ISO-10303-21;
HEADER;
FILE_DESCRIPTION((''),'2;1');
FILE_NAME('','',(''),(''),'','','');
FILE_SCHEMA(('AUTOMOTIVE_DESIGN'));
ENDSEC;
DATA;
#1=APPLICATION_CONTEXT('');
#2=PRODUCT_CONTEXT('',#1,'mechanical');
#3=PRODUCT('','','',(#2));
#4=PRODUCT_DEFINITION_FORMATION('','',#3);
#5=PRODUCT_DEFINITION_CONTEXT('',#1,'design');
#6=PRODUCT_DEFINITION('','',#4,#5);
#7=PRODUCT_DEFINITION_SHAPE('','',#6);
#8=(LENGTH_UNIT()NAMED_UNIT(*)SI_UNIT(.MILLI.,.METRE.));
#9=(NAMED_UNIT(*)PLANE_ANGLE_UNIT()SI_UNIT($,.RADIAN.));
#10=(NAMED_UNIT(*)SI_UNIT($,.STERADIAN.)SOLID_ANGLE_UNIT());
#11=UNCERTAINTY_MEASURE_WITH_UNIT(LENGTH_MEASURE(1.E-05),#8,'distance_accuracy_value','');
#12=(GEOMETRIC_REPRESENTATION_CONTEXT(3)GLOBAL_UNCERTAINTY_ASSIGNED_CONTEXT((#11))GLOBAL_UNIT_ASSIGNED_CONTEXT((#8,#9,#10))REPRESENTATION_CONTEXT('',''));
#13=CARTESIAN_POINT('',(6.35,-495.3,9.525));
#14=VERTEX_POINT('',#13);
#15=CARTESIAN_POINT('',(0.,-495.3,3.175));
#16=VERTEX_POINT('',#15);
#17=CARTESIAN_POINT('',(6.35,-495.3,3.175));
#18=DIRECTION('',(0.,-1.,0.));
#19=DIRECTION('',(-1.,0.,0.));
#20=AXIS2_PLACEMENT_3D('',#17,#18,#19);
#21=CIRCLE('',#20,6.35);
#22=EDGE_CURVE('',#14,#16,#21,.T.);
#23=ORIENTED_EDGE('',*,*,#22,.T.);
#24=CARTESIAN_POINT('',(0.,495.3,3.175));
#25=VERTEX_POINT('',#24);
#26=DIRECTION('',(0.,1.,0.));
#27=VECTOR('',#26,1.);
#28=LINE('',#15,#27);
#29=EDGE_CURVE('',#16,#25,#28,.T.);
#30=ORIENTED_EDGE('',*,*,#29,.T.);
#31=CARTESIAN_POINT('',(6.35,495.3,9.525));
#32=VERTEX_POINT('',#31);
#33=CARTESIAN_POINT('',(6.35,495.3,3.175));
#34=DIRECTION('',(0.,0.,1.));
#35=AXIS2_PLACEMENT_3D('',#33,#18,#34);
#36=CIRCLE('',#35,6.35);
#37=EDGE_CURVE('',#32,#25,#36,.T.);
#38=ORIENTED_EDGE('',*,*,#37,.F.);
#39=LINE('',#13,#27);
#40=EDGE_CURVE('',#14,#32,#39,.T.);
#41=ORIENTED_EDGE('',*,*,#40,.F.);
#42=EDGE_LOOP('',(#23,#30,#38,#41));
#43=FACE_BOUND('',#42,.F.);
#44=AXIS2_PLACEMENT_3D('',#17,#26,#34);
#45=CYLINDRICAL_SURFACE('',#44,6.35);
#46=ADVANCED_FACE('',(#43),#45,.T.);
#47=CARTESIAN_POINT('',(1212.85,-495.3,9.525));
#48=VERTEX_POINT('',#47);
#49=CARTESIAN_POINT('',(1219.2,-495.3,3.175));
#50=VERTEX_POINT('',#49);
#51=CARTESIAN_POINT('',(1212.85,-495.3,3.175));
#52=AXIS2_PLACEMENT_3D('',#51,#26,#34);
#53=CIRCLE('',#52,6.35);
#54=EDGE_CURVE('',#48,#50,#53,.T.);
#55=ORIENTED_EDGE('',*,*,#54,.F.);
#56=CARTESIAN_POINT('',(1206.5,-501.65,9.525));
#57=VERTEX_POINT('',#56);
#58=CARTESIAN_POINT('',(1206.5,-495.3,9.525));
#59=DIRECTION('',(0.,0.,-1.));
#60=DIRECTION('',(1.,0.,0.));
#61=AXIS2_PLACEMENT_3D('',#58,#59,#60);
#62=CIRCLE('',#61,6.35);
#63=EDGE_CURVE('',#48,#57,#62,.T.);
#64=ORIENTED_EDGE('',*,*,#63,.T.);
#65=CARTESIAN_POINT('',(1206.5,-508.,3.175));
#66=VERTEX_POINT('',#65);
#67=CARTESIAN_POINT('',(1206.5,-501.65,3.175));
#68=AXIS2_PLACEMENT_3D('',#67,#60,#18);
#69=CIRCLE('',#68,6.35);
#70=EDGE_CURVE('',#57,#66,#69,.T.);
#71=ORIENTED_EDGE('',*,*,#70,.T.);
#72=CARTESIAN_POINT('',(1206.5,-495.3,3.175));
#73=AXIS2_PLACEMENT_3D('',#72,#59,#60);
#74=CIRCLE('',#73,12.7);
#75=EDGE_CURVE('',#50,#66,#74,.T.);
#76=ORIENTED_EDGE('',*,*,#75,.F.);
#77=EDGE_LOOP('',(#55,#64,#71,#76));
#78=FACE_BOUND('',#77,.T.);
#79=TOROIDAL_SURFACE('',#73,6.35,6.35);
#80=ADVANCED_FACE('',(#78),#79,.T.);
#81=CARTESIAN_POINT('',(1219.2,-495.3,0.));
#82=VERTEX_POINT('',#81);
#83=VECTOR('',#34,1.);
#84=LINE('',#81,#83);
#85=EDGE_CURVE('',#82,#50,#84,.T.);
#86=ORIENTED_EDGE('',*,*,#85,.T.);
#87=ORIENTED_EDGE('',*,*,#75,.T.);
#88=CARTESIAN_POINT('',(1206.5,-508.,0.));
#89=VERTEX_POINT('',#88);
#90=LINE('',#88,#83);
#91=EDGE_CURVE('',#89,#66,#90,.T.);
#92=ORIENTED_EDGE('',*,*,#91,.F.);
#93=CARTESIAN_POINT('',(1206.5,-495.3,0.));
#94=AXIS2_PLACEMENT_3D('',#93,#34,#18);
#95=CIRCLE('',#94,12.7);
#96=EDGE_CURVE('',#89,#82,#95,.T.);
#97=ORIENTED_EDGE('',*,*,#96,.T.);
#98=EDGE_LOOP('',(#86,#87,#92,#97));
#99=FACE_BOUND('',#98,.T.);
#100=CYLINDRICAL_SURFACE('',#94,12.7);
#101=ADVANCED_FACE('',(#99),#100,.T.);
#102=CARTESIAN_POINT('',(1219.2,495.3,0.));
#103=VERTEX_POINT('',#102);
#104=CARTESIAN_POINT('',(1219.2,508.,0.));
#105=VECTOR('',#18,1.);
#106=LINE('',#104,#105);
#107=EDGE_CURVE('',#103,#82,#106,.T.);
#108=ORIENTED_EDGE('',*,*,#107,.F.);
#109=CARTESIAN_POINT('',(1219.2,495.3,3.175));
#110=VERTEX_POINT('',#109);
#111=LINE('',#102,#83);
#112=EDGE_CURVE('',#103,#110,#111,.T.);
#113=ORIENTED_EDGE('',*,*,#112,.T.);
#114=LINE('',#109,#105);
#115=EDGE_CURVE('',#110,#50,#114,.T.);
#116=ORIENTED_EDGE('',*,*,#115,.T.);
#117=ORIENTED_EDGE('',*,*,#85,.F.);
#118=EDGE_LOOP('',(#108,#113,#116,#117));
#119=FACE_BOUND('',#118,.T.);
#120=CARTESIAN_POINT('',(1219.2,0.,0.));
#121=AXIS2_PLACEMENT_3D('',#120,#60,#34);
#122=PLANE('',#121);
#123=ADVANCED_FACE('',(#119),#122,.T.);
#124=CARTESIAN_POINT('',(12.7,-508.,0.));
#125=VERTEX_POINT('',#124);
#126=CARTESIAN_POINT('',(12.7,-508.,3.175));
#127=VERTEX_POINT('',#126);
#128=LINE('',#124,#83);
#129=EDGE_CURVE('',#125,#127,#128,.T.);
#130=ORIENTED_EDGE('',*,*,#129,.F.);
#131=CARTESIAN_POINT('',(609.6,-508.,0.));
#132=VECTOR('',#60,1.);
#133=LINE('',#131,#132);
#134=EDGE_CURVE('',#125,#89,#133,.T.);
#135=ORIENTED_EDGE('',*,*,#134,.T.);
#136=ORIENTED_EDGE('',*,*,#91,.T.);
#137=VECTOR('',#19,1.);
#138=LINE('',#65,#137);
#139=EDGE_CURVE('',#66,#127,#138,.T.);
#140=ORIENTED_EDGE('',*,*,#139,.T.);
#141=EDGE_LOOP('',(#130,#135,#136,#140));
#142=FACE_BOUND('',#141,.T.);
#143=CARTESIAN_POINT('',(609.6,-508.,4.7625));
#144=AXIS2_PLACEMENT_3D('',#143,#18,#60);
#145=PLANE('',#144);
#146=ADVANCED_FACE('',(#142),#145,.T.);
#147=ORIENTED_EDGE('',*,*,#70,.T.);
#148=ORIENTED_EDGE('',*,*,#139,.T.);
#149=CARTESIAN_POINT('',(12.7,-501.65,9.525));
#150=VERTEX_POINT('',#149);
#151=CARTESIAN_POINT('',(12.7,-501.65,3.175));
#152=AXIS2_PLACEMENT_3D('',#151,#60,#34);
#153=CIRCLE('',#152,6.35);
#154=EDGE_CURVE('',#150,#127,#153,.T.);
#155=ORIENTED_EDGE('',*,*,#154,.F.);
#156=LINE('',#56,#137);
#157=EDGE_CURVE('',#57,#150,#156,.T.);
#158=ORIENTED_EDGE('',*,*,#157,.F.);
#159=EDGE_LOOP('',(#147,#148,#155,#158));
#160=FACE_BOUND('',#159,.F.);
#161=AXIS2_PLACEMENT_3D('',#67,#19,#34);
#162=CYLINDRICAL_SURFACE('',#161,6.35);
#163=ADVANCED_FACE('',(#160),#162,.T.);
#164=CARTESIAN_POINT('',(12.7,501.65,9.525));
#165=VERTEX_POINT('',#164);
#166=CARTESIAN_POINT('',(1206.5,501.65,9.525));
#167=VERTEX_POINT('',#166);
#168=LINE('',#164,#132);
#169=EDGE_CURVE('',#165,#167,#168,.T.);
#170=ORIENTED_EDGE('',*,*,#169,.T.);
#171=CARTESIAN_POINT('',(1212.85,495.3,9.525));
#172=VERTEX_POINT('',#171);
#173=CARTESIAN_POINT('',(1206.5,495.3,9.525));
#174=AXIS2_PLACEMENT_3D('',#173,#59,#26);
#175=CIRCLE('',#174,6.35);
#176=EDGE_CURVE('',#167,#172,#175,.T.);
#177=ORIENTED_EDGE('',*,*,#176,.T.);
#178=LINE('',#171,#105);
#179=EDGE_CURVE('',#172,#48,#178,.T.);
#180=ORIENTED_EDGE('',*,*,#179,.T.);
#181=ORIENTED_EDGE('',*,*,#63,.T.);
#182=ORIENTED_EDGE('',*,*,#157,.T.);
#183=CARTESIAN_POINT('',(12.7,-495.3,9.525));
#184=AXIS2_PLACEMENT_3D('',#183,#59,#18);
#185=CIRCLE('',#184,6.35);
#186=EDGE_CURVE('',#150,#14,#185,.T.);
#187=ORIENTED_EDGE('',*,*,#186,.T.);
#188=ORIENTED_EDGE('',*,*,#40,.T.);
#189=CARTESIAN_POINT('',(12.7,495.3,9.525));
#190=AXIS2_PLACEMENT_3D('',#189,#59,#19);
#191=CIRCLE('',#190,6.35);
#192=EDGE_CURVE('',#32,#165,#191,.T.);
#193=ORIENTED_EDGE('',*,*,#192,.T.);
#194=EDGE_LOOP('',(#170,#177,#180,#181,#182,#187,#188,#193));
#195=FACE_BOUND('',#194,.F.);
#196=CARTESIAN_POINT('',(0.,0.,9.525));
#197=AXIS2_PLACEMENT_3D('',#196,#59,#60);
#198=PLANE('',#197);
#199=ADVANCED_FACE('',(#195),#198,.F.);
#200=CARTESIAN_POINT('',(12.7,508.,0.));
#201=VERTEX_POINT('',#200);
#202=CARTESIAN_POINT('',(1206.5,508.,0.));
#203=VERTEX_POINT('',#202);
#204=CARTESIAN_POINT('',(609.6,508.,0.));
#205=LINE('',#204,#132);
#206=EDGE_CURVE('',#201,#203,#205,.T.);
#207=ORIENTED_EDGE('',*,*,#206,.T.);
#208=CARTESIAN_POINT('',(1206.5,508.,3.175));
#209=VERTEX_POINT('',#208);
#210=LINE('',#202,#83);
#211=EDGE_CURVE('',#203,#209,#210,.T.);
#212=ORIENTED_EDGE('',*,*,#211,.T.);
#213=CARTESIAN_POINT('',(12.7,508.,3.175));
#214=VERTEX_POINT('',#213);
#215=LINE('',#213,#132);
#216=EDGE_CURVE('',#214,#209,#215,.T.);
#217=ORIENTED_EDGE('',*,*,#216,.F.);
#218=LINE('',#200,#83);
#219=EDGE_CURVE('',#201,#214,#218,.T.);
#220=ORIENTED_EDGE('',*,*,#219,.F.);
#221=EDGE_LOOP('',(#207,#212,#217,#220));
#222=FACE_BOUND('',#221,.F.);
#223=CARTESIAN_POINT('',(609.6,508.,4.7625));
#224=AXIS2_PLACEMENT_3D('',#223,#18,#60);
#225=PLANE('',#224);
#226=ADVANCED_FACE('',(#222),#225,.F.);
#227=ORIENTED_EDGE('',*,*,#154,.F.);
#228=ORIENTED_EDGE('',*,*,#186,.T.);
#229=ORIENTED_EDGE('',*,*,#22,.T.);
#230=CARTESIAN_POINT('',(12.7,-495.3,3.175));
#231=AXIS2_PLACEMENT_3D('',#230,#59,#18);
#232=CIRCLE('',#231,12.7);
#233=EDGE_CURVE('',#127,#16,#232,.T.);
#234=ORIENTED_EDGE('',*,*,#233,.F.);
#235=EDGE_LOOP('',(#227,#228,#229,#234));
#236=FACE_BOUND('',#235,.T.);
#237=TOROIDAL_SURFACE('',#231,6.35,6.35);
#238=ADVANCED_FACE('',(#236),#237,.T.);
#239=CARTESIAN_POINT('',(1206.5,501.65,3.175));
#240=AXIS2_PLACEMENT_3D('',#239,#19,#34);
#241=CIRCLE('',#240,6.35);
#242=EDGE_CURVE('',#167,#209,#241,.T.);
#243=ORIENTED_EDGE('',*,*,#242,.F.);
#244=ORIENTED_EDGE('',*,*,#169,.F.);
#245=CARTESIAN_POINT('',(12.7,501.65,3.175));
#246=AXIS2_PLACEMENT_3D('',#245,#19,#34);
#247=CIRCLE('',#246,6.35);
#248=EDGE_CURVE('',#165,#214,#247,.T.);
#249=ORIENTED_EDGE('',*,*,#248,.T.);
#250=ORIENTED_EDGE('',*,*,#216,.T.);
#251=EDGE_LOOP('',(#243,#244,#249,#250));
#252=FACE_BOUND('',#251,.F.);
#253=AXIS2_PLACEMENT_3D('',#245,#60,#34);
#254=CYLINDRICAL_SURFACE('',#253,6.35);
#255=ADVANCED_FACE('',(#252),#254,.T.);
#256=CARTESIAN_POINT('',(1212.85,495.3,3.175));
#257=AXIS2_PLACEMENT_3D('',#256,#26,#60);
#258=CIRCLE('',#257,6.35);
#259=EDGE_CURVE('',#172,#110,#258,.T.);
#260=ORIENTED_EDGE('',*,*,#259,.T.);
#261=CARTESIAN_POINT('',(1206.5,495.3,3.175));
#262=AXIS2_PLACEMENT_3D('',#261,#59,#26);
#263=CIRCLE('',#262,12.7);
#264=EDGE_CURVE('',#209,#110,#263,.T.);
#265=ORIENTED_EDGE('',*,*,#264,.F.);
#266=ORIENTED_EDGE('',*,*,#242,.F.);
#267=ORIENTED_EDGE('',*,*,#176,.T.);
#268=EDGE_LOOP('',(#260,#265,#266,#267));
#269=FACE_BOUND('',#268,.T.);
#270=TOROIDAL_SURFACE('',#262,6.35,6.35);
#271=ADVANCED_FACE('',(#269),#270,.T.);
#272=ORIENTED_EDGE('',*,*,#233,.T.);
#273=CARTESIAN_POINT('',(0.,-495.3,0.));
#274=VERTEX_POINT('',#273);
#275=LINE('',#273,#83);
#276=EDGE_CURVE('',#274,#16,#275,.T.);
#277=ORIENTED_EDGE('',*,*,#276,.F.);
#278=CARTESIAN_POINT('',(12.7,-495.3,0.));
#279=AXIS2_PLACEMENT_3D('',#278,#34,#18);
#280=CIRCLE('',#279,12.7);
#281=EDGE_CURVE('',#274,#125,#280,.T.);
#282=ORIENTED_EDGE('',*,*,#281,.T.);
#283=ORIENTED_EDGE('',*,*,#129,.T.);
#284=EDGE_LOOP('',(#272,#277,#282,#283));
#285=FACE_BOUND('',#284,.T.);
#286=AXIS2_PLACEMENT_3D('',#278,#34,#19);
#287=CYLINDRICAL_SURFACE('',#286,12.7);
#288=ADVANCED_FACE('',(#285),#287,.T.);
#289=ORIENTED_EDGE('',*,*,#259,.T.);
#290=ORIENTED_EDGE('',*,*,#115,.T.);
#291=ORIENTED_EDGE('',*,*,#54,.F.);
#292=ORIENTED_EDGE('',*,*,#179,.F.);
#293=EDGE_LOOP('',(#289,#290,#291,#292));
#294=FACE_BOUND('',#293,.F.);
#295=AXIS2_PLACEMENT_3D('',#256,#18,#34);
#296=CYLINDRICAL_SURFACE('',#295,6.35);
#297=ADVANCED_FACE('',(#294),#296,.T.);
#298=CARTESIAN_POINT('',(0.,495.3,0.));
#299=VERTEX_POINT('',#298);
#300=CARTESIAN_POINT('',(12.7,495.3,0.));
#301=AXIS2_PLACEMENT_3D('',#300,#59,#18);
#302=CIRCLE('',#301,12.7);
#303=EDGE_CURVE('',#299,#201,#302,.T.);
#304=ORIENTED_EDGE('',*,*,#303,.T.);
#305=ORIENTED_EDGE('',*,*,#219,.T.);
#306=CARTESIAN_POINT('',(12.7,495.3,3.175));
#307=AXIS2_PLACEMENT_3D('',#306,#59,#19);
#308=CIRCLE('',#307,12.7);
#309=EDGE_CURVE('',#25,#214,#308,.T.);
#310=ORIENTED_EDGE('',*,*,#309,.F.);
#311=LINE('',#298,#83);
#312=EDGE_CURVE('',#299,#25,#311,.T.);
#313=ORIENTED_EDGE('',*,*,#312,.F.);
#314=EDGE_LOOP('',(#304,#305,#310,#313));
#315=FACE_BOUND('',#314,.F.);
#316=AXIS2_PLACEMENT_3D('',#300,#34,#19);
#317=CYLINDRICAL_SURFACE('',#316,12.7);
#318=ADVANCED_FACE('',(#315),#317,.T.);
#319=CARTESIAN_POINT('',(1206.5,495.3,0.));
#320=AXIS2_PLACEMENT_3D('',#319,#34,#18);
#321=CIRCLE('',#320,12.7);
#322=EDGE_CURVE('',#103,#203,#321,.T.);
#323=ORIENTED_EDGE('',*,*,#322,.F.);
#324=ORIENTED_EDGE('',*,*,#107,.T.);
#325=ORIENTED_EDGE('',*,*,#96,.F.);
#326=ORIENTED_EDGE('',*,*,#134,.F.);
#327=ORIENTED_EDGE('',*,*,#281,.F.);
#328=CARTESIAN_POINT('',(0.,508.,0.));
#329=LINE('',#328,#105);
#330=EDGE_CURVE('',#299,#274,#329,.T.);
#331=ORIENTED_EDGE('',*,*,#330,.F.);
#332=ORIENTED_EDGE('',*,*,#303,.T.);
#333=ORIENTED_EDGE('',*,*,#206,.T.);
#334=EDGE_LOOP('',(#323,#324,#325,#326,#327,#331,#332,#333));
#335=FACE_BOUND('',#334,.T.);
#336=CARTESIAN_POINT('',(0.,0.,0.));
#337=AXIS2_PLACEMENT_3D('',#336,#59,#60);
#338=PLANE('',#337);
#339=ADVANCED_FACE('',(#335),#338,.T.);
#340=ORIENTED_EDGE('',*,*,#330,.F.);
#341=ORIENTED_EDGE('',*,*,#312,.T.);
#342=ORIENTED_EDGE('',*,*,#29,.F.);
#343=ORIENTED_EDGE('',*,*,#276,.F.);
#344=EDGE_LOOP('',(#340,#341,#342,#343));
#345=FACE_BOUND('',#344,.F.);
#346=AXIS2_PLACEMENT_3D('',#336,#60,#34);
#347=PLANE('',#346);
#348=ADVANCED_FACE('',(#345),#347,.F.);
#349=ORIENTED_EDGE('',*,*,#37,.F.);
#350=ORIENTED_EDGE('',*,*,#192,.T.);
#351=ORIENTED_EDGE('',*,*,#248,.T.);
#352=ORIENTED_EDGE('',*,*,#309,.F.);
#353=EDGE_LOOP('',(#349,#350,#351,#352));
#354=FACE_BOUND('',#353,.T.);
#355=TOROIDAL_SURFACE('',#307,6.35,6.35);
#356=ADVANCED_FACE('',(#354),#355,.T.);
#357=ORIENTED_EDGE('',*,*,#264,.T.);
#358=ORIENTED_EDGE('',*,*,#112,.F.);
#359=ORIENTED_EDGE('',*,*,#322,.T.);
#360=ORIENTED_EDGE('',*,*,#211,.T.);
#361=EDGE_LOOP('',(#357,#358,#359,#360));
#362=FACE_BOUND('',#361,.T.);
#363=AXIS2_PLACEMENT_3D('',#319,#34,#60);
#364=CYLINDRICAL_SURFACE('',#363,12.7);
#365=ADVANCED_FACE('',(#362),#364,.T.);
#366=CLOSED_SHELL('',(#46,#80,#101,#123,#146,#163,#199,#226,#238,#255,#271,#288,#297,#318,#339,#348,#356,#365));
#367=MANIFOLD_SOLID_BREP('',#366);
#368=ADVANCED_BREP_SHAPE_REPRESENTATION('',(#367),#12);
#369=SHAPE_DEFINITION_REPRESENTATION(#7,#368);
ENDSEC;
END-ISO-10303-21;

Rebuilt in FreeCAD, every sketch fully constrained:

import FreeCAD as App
import Part
import Sketcher
Q = App.Units.Quantity


def edges_at(feature, points):
    """Names of the edges that pass closest to the given points."""
    edges = feature.Shape.Edges
    near = lambda p: min(range(len(edges)), key=lambda i: edges[i].distToShape(Part.Vertex(*p))[0])
    return sorted({f"Edge{near(p) + 1}" for p in points})

doc = App.newDocument("Part")
body = doc.addObject("PartDesign::Body", "Body")

# Sketch on XZ plane
sketch1 = body.newObject("Sketcher::SketchObject", "Sketch")
sketch1.AttachmentSupport = (doc.getObject("XZ_Plane"), [""])
sketch1.MapMode = "FlatFace"
sketch1.addGeometry([
    Part.LineSegment(App.Vector(0, 9.525, 0), App.Vector(0, 0, 0)),
    Part.LineSegment(App.Vector(0, 0, 0), App.Vector(1219.2, 0, 0)),
    Part.LineSegment(App.Vector(1219.2, 0, 0), App.Vector(1219.2, 9.525, 0)),
    Part.LineSegment(App.Vector(1219.2, 9.525, 0), App.Vector(0, 9.525, 0)),
], False)
sketch1.addConstraint([
    Sketcher.Constraint("Coincident", 0, 2, 1, 1),
    Sketcher.Constraint("Coincident", 1, 2, 2, 1),
    Sketcher.Constraint("Coincident", 2, 2, 3, 1),
    Sketcher.Constraint("Coincident", 3, 2, 0, 1),
    Sketcher.Constraint("Vertical", 0),
    Sketcher.Constraint("Horizontal", 1),
    Sketcher.Constraint("Vertical", 2),
    Sketcher.Constraint("Horizontal", 3),
    Sketcher.Constraint("Coincident", 0, 2, -1, 1),
    Sketcher.Constraint("DistanceX", 1, 1, 1, 2, Q("48 in")),
    Sketcher.Constraint("DistanceY", 0, 2, 0, 1, Q("0.375 in")),
])
pad1 = body.newObject("PartDesign::Pad", "Pad")
pad1.Profile = sketch1
pad1.Length = Q("40 in")
pad1.Midplane = True
doc.recompute()

fillet = body.newObject("PartDesign::Fillet", "Fillet")
fillet.Base = (pad1, edges_at(pad1, [
    (1219.2, -508, 4.763),
    (1219.2, 508, 4.763),
    (0, 508, 4.763),
    (0, -508, 4.763),
]))
fillet.Radius = Q("0.5 in")
doc.recompute()

fillet2 = body.newObject("PartDesign::Fillet", "Fillet001")
fillet2.Base = (fillet, edges_at(fillet, [
    (609.6, 508, 9.525),
    (1215.48, 504.28, 9.525),
    (3.72, 504.28, 9.525),
    (1219.2, 0, 9.525),
    (0, 0, 9.525),
    (1215.48, -504.28, 9.525),
    (3.72, -504.28, 9.525),
    (609.6, -508, 9.525),
]))
fillet2.Radius = Q("0.25 in")

doc.recompute()
